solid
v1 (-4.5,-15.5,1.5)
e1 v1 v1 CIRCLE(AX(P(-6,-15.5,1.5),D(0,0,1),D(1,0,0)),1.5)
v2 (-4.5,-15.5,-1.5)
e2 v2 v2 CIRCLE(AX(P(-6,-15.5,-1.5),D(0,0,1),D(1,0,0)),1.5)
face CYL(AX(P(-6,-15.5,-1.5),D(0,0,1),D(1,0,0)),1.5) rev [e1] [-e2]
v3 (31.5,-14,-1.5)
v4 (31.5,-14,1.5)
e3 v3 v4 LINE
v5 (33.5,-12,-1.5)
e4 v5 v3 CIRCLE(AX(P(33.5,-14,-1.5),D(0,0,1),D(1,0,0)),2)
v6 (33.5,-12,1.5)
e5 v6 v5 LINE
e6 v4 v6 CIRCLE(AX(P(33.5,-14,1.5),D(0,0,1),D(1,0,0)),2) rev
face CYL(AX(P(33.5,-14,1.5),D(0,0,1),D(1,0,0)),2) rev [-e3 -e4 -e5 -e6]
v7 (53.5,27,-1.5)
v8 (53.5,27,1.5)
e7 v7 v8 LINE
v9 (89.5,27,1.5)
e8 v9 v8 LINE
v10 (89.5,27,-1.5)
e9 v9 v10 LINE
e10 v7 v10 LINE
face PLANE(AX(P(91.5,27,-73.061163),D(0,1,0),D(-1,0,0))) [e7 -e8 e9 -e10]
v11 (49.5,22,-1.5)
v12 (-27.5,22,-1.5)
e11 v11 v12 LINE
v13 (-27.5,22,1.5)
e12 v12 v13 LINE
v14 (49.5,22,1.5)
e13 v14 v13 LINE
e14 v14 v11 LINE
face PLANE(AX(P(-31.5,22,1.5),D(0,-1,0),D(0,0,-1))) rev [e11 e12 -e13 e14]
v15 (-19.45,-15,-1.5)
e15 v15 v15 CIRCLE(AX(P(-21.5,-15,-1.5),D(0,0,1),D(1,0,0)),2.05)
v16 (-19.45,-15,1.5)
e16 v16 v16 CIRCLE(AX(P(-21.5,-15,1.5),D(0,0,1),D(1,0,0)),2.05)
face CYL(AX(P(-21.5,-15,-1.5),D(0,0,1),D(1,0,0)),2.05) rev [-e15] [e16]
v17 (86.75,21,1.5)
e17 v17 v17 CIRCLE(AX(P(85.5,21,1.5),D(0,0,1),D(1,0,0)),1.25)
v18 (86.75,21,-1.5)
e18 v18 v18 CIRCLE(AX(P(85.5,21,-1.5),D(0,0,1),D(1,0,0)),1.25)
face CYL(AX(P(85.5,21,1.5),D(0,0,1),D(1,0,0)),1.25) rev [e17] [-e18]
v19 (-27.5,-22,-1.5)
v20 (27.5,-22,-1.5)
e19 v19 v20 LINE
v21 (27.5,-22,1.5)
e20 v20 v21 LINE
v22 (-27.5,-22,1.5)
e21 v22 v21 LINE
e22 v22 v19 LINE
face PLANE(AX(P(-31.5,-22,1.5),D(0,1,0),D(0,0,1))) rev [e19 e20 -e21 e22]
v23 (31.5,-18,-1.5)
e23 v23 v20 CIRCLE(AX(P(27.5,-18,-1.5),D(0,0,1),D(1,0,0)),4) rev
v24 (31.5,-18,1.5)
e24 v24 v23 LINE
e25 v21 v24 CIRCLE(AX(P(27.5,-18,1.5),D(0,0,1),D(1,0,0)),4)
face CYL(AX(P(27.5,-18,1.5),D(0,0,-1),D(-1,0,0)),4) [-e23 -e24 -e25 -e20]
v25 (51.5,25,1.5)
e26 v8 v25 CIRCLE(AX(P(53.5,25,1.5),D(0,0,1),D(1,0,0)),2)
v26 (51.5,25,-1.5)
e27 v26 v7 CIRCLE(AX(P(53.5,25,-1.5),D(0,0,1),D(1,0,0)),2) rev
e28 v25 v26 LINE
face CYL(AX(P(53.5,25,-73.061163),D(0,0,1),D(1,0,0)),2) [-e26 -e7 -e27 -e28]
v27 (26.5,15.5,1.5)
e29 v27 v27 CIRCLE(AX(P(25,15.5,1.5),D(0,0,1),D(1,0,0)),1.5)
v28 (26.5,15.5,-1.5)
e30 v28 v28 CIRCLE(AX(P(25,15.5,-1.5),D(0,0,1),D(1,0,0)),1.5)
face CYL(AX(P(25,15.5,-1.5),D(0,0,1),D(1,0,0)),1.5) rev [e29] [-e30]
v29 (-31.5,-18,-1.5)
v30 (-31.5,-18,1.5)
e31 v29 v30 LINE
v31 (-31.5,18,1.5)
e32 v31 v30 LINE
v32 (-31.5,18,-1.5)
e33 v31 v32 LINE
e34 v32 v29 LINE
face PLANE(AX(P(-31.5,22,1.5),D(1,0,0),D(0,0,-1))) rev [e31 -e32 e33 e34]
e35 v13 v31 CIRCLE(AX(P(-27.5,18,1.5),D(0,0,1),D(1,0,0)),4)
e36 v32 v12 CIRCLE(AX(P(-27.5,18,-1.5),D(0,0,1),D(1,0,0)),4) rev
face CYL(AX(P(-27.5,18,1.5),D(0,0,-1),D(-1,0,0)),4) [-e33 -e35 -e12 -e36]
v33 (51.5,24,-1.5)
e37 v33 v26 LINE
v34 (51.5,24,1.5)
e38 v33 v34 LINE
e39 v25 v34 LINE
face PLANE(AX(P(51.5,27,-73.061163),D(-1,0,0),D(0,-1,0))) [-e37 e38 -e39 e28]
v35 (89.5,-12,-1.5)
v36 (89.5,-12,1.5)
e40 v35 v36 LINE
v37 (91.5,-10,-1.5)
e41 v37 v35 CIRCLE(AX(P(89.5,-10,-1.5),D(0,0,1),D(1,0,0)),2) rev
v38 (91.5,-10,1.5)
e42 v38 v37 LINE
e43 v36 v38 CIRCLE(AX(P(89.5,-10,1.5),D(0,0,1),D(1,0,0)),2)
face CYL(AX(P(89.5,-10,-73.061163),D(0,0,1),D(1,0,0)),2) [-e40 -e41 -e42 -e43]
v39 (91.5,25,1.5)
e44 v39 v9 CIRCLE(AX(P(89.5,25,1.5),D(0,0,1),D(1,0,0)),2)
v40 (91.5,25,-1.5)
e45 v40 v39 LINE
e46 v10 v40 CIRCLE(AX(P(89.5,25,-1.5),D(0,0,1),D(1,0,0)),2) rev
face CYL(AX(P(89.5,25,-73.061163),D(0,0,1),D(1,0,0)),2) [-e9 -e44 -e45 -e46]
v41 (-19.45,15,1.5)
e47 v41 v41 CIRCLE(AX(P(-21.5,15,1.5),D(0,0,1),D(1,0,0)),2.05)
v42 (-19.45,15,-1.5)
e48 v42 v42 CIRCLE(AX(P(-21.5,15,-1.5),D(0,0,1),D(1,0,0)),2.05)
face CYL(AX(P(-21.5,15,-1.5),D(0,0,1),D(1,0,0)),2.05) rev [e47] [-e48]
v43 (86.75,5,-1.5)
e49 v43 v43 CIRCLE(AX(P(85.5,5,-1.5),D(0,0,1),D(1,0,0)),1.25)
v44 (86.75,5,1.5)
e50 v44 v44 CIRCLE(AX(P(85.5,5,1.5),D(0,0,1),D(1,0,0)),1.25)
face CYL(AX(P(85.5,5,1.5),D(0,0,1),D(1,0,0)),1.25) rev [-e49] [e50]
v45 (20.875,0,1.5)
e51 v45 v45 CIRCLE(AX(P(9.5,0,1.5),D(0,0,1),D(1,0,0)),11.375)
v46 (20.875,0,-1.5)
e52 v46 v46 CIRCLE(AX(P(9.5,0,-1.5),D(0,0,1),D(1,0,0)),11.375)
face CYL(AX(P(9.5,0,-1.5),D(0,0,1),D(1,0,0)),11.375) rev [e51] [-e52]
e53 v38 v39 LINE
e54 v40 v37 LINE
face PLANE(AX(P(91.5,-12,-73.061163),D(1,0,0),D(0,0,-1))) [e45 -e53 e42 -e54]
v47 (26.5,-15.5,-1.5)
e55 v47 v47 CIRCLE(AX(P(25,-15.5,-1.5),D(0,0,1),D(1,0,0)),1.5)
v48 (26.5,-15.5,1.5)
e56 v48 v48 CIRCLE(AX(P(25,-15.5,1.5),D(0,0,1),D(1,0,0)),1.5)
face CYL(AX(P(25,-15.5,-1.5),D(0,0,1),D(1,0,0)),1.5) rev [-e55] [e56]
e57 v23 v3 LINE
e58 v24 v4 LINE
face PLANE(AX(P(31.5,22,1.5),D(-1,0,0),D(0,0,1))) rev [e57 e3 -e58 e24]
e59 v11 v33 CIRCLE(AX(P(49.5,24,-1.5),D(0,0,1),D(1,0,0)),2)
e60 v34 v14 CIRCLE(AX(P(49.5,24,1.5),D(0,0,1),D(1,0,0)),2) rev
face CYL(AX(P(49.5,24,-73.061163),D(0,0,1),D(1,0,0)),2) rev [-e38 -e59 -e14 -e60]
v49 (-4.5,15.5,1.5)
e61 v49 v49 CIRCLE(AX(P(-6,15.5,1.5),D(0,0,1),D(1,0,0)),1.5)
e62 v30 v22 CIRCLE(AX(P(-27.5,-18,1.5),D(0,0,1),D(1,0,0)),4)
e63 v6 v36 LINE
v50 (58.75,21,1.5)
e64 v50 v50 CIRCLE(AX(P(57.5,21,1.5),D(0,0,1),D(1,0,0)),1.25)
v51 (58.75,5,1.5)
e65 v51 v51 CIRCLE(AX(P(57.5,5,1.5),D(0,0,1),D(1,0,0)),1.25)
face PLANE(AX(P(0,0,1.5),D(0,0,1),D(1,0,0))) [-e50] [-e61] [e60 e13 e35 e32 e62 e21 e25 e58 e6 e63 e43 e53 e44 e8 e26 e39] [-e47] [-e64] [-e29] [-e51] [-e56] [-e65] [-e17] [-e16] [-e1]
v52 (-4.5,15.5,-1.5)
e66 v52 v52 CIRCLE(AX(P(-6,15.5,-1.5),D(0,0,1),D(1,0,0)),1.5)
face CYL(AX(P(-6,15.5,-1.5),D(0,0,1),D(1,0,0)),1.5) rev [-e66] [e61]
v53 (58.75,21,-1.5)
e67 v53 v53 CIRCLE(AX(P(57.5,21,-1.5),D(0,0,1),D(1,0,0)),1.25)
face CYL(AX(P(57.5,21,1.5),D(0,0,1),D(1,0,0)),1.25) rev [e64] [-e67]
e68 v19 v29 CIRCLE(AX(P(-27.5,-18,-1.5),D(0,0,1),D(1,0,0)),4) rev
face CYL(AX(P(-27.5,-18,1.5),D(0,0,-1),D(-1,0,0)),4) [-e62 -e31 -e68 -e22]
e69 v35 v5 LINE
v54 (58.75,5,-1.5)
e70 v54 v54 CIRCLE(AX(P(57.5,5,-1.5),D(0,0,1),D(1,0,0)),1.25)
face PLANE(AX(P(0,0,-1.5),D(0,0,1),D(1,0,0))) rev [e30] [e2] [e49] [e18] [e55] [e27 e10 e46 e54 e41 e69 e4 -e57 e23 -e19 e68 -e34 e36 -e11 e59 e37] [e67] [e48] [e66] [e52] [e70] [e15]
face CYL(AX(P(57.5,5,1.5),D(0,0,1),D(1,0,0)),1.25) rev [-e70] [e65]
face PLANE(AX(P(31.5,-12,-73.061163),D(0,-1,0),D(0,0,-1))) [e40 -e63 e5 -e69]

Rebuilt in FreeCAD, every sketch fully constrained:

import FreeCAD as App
import Part
import Sketcher


def edges_at(feature, points):
    """Names of the edges that pass closest to the given points."""
    edges = feature.Shape.Edges
    near = lambda p: min(range(len(edges)), key=lambda i: edges[i].distToShape(Part.Vertex(*p))[0])
    return sorted({f"Edge{near(p) + 1}" for p in points})

doc = App.newDocument("Part")
body = doc.addObject("PartDesign::Body", "Body")

# Sketch on XY plane
sketch1 = doc.addObject("Sketcher::SketchObject", "Sketch")
body.addObject(sketch1)
sketch1.AttachmentSupport = (doc.XY_Plane, [""])
sketch1.MapMode = "FlatFace"
sketch1.addGeometry([
    Part.LineSegment(App.Vector(-32, 22, 0), App.Vector(-32, -22, 0)),
    Part.LineSegment(App.Vector(-32, -22, 0), App.Vector(32, -22, 0)),
    Part.LineSegment(App.Vector(32, -22, 0), App.Vector(32, 22, 0)),
    Part.LineSegment(App.Vector(32, 22, 0), App.Vector(-32, 22, 0)),
], False)
sketch1.addConstraint([
    Sketcher.Constraint("Coincident", 0, 2, 1, 1),
    Sketcher.Constraint("Coincident", 1, 2, 2, 1),
    Sketcher.Constraint("Coincident", 2, 2, 3, 1),
    Sketcher.Constraint("Coincident", 3, 2, 0, 1),
    Sketcher.Constraint("Vertical", 0),
    Sketcher.Constraint("Horizontal", 1),
    Sketcher.Constraint("Vertical", 2),
    Sketcher.Constraint("Horizontal", 3),
    Sketcher.Constraint("Symmetric", 0, 2, 2, 2, -1, 1),
    Sketcher.Constraint("DistanceX", 1, 1, 1, 2, 63.0),
    Sketcher.Constraint("DistanceY", 0, 2, 0, 1, 44.0),
])
pad1 = doc.addObject("PartDesign::Pad", "Pad")
body.addObject(pad1)
pad1.Profile = sketch1
pad1.Length = 3
pad1.Midplane = True

# Sketch on XY plane
sketch2 = doc.addObject("Sketcher::SketchObject", "Sketch001")
body.addObject(sketch2)
sketch2.AttachmentSupport = (doc.XY_Plane, [""])
sketch2.MapMode = "FlatFace"
sketch2.AttachmentOffset = App.Placement(App.Vector(0, 0, 1.5), App.Rotation())
sketch2.addGeometry([
    Part.LineSegment(App.Vector(32, -12, 0), App.Vector(92, -12, 0)),  # 0
    Part.LineSegment(App.Vector(92, -12, 0), App.Vector(92, 27, 0)),  # 1
    Part.LineSegment(App.Vector(92, 27, 0), App.Vector(52, 27, 0)),  # 2
    Part.LineSegment(App.Vector(52, 27, 0), App.Vector(52, 22, 0)),  # 3
    Part.LineSegment(App.Vector(52, 22, 0), App.Vector(32, 22, 0)),  # 4
    Part.LineSegment(App.Vector(32, 22, 0), App.Vector(32, -12, 0)),  # 5
], False)
sketch2.addConstraint([
    Sketcher.Constraint("Coincident", 0, 2, 1, 1),
    Sketcher.Constraint("Coincident", 1, 2, 2, 1),
    Sketcher.Constraint("Coincident", 2, 2, 3, 1),
    Sketcher.Constraint("Coincident", 3, 2, 4, 1),
    Sketcher.Constraint("Coincident", 4, 2, 5, 1),
    Sketcher.Constraint("Coincident", 5, 2, 0, 1),
    Sketcher.Constraint("Horizontal", 0),
    Sketcher.Constraint("Vertical", 1),
    Sketcher.Constraint("Horizontal", 2),
    Sketcher.Constraint("Vertical", 3),
    Sketcher.Constraint("Horizontal", 4),
    Sketcher.Constraint("Vertical", 5),
    Sketcher.Constraint("DistanceX", 0, 1, 0, 2, 60.0),
    Sketcher.Constraint("DistanceX", 2, 2, 2, 1, 40.0),
    Sketcher.Constraint("DistanceY", 1, 1, 1, 2, 39.0),
    Sketcher.Constraint("DistanceY", 3, 2, 3, 1, 5.0),
    Sketcher.Constraint("DistanceY", 0, 2, -1, 1, 12.0),
    Sketcher.Constraint("DistanceX", -1, 1, 0, 2, 91.5),
])
pad2 = doc.addObject("PartDesign::Pad", "Pad001")
body.addObject(pad2)
pad2.Profile = sketch2
pad2.Length = 3
pad2.Reversed = True

# Sketch on XY plane
sketch3 = doc.addObject("Sketcher::SketchObject", "Sketch002")
body.addObject(sketch3)
sketch3.AttachmentSupport = (doc.XY_Plane, [""])
sketch3.MapMode = "FlatFace"
sketch3.AttachmentOffset = App.Placement(App.Vector(0, 0, 1.5), App.Rotation())
sketch3.addGeometry([
    Part.Circle(App.Vector(9.5, 0, 0), App.Vector(0, 0, 1), 11.4),  # 0
    Part.Circle(App.Vector(-6, 15.5, 0), App.Vector(0, 0, 1), 1.5),  # 1
    Part.Circle(App.Vector(25, 15.5, 0), App.Vector(0, 0, 1), 1.5),  # 2
    Part.Circle(App.Vector(25, -15.5, 0), App.Vector(0, 0, 1), 1.5),  # 3
    Part.Circle(App.Vector(-6, -15.5, 0), App.Vector(0, 0, 1), 1.5),  # 4
    Part.Circle(App.Vector(-21.5, 15, 0), App.Vector(0, 0, 1), 2),  # 5
    Part.Circle(App.Vector(-21.5, -15, 0), App.Vector(0, 0, 1), 2),  # 6
], False)
sketch3.addConstraint([
    Sketcher.Constraint("Equal", 1, 2),
    Sketcher.Constraint("Equal", 2, 3),
    Sketcher.Constraint("Equal", 3, 4),
    Sketcher.Constraint("Equal", 5, 6),
    Sketcher.Constraint("Symmetric", 2, 3, 3, 3, -1),
    Sketcher.Constraint("Symmetric", 1, 3, 4, 3, -1),
    Sketcher.Constraint("Symmetric", 5, 3, 6, 3, -1),
    Sketcher.Constraint("PointOnObject", 0, 3, -1),
    Sketcher.Constraint("Horizontal", 1, 3, 2, 3),
    Sketcher.Constraint("Diameter", 1, 3.0),
    Sketcher.Constraint("Diameter", 5, 4.1),
    Sketcher.Constraint("Diameter", 0, 22.75),
    Sketcher.Constraint("DistanceX", 1, 3, -1, 1, 6.0),
    Sketcher.Constraint("DistanceX", -1, 1, 2, 3, 25.0),
    Sketcher.Constraint("DistanceY", -1, 1, 5, 3, 15.0),
    Sketcher.Constraint("DistanceY", 3, 3, 2, 3, 31.0),
    Sketcher.Constraint("DistanceX", 5, 3, 0, 3, 31.0),
    Sketcher.Constraint("DistanceX", -1, 1, 0, 3, 9.5),
])
pocket1 = doc.addObject("PartDesign::Pocket", "Pocket")
body.addObject(pocket1)
pocket1.Profile = sketch3
pocket1.Type = "ThroughAll"
doc.recompute()

fillet = doc.addObject("PartDesign::Fillet", "Fillet")
body.addObject(fillet)
fillet.Base = (pocket1, edges_at(pocket1, [(31.5, -22, 0), (-31.5, -22, 0), (-31.5, 22, 0)]))
fillet.Radius = 4

# Sketch on XY plane
sketch4 = doc.addObject("Sketcher::SketchObject", "Sketch003")
body.addObject(sketch4)
sketch4.AttachmentSupport = (doc.XY_Plane, [""])
sketch4.MapMode = "FlatFace"
sketch4.AttachmentOffset = App.Placement(App.Vector(0, 0, 1.5), App.Rotation())
sketch4.addGeometry([
    Part.Circle(App.Vector(57.5, 21, 0), App.Vector(0, 0, 1), 1.2),
    Part.Circle(App.Vector(85.5, 21, 0), App.Vector(0, 0, 1), 1.2),
    Part.Circle(App.Vector(85.5, 5, 0), App.Vector(0, 0, 1), 1.2),
    Part.Circle(App.Vector(57.5, 5, 0), App.Vector(0, 0, 1), 1.2),
], False)
sketch4.addConstraint([
    Sketcher.Constraint("Equal", 0, 1),
    Sketcher.Constraint("Equal", 1, 2),
    Sketcher.Constraint("Equal", 2, 3),
    Sketcher.Constraint("Horizontal", 0, 3, 1, 3),
    Sketcher.Constraint("Horizontal", 2, 3, 3, 3),
    Sketcher.Constraint("Vertical", 1, 3, 2, 3),
    Sketcher.Constraint("Vertical", 0, 3, 3, 3),
    Sketcher.Constraint("Diameter", 0, 2.5),
    Sketcher.Constraint("DistanceY", -1, 1, 0, 3, 21.0),
    Sketcher.Constraint("DistanceY", -1, 1, 2, 3, 5.0),
    Sketcher.Constraint("DistanceX", 0, 3, 1, 3, 28.0),
    Sketcher.Constraint("DistanceX", -1, 1, 0, 3, 57.5),
])
doc.recompute()
hole = doc.addObject("PartDesign::Hole", "Hole")
body.addObject(hole)
hole.Profile = sketch4
hole.ThreadType = "None"
hole.Diameter = 2.5
hole.DepthType = "Dimension"
hole.Depth = 4
hole.DrillPoint = "Angled"
hole.DrillPointAngle = 118
doc.recompute()

fillet2 = doc.addObject("PartDesign::Fillet", "Fillet001")
body.addObject(fillet2)
fillet2.Base = (hole, edges_at(hole, [
    (31.5, -12, 0),
    (51.5, 22, 0),
    (51.5, 27, 0),
    (91.5, 27, 0),
    (91.5, -12, 0),
]))
fillet2.Radius = 2

doc.recompute()
